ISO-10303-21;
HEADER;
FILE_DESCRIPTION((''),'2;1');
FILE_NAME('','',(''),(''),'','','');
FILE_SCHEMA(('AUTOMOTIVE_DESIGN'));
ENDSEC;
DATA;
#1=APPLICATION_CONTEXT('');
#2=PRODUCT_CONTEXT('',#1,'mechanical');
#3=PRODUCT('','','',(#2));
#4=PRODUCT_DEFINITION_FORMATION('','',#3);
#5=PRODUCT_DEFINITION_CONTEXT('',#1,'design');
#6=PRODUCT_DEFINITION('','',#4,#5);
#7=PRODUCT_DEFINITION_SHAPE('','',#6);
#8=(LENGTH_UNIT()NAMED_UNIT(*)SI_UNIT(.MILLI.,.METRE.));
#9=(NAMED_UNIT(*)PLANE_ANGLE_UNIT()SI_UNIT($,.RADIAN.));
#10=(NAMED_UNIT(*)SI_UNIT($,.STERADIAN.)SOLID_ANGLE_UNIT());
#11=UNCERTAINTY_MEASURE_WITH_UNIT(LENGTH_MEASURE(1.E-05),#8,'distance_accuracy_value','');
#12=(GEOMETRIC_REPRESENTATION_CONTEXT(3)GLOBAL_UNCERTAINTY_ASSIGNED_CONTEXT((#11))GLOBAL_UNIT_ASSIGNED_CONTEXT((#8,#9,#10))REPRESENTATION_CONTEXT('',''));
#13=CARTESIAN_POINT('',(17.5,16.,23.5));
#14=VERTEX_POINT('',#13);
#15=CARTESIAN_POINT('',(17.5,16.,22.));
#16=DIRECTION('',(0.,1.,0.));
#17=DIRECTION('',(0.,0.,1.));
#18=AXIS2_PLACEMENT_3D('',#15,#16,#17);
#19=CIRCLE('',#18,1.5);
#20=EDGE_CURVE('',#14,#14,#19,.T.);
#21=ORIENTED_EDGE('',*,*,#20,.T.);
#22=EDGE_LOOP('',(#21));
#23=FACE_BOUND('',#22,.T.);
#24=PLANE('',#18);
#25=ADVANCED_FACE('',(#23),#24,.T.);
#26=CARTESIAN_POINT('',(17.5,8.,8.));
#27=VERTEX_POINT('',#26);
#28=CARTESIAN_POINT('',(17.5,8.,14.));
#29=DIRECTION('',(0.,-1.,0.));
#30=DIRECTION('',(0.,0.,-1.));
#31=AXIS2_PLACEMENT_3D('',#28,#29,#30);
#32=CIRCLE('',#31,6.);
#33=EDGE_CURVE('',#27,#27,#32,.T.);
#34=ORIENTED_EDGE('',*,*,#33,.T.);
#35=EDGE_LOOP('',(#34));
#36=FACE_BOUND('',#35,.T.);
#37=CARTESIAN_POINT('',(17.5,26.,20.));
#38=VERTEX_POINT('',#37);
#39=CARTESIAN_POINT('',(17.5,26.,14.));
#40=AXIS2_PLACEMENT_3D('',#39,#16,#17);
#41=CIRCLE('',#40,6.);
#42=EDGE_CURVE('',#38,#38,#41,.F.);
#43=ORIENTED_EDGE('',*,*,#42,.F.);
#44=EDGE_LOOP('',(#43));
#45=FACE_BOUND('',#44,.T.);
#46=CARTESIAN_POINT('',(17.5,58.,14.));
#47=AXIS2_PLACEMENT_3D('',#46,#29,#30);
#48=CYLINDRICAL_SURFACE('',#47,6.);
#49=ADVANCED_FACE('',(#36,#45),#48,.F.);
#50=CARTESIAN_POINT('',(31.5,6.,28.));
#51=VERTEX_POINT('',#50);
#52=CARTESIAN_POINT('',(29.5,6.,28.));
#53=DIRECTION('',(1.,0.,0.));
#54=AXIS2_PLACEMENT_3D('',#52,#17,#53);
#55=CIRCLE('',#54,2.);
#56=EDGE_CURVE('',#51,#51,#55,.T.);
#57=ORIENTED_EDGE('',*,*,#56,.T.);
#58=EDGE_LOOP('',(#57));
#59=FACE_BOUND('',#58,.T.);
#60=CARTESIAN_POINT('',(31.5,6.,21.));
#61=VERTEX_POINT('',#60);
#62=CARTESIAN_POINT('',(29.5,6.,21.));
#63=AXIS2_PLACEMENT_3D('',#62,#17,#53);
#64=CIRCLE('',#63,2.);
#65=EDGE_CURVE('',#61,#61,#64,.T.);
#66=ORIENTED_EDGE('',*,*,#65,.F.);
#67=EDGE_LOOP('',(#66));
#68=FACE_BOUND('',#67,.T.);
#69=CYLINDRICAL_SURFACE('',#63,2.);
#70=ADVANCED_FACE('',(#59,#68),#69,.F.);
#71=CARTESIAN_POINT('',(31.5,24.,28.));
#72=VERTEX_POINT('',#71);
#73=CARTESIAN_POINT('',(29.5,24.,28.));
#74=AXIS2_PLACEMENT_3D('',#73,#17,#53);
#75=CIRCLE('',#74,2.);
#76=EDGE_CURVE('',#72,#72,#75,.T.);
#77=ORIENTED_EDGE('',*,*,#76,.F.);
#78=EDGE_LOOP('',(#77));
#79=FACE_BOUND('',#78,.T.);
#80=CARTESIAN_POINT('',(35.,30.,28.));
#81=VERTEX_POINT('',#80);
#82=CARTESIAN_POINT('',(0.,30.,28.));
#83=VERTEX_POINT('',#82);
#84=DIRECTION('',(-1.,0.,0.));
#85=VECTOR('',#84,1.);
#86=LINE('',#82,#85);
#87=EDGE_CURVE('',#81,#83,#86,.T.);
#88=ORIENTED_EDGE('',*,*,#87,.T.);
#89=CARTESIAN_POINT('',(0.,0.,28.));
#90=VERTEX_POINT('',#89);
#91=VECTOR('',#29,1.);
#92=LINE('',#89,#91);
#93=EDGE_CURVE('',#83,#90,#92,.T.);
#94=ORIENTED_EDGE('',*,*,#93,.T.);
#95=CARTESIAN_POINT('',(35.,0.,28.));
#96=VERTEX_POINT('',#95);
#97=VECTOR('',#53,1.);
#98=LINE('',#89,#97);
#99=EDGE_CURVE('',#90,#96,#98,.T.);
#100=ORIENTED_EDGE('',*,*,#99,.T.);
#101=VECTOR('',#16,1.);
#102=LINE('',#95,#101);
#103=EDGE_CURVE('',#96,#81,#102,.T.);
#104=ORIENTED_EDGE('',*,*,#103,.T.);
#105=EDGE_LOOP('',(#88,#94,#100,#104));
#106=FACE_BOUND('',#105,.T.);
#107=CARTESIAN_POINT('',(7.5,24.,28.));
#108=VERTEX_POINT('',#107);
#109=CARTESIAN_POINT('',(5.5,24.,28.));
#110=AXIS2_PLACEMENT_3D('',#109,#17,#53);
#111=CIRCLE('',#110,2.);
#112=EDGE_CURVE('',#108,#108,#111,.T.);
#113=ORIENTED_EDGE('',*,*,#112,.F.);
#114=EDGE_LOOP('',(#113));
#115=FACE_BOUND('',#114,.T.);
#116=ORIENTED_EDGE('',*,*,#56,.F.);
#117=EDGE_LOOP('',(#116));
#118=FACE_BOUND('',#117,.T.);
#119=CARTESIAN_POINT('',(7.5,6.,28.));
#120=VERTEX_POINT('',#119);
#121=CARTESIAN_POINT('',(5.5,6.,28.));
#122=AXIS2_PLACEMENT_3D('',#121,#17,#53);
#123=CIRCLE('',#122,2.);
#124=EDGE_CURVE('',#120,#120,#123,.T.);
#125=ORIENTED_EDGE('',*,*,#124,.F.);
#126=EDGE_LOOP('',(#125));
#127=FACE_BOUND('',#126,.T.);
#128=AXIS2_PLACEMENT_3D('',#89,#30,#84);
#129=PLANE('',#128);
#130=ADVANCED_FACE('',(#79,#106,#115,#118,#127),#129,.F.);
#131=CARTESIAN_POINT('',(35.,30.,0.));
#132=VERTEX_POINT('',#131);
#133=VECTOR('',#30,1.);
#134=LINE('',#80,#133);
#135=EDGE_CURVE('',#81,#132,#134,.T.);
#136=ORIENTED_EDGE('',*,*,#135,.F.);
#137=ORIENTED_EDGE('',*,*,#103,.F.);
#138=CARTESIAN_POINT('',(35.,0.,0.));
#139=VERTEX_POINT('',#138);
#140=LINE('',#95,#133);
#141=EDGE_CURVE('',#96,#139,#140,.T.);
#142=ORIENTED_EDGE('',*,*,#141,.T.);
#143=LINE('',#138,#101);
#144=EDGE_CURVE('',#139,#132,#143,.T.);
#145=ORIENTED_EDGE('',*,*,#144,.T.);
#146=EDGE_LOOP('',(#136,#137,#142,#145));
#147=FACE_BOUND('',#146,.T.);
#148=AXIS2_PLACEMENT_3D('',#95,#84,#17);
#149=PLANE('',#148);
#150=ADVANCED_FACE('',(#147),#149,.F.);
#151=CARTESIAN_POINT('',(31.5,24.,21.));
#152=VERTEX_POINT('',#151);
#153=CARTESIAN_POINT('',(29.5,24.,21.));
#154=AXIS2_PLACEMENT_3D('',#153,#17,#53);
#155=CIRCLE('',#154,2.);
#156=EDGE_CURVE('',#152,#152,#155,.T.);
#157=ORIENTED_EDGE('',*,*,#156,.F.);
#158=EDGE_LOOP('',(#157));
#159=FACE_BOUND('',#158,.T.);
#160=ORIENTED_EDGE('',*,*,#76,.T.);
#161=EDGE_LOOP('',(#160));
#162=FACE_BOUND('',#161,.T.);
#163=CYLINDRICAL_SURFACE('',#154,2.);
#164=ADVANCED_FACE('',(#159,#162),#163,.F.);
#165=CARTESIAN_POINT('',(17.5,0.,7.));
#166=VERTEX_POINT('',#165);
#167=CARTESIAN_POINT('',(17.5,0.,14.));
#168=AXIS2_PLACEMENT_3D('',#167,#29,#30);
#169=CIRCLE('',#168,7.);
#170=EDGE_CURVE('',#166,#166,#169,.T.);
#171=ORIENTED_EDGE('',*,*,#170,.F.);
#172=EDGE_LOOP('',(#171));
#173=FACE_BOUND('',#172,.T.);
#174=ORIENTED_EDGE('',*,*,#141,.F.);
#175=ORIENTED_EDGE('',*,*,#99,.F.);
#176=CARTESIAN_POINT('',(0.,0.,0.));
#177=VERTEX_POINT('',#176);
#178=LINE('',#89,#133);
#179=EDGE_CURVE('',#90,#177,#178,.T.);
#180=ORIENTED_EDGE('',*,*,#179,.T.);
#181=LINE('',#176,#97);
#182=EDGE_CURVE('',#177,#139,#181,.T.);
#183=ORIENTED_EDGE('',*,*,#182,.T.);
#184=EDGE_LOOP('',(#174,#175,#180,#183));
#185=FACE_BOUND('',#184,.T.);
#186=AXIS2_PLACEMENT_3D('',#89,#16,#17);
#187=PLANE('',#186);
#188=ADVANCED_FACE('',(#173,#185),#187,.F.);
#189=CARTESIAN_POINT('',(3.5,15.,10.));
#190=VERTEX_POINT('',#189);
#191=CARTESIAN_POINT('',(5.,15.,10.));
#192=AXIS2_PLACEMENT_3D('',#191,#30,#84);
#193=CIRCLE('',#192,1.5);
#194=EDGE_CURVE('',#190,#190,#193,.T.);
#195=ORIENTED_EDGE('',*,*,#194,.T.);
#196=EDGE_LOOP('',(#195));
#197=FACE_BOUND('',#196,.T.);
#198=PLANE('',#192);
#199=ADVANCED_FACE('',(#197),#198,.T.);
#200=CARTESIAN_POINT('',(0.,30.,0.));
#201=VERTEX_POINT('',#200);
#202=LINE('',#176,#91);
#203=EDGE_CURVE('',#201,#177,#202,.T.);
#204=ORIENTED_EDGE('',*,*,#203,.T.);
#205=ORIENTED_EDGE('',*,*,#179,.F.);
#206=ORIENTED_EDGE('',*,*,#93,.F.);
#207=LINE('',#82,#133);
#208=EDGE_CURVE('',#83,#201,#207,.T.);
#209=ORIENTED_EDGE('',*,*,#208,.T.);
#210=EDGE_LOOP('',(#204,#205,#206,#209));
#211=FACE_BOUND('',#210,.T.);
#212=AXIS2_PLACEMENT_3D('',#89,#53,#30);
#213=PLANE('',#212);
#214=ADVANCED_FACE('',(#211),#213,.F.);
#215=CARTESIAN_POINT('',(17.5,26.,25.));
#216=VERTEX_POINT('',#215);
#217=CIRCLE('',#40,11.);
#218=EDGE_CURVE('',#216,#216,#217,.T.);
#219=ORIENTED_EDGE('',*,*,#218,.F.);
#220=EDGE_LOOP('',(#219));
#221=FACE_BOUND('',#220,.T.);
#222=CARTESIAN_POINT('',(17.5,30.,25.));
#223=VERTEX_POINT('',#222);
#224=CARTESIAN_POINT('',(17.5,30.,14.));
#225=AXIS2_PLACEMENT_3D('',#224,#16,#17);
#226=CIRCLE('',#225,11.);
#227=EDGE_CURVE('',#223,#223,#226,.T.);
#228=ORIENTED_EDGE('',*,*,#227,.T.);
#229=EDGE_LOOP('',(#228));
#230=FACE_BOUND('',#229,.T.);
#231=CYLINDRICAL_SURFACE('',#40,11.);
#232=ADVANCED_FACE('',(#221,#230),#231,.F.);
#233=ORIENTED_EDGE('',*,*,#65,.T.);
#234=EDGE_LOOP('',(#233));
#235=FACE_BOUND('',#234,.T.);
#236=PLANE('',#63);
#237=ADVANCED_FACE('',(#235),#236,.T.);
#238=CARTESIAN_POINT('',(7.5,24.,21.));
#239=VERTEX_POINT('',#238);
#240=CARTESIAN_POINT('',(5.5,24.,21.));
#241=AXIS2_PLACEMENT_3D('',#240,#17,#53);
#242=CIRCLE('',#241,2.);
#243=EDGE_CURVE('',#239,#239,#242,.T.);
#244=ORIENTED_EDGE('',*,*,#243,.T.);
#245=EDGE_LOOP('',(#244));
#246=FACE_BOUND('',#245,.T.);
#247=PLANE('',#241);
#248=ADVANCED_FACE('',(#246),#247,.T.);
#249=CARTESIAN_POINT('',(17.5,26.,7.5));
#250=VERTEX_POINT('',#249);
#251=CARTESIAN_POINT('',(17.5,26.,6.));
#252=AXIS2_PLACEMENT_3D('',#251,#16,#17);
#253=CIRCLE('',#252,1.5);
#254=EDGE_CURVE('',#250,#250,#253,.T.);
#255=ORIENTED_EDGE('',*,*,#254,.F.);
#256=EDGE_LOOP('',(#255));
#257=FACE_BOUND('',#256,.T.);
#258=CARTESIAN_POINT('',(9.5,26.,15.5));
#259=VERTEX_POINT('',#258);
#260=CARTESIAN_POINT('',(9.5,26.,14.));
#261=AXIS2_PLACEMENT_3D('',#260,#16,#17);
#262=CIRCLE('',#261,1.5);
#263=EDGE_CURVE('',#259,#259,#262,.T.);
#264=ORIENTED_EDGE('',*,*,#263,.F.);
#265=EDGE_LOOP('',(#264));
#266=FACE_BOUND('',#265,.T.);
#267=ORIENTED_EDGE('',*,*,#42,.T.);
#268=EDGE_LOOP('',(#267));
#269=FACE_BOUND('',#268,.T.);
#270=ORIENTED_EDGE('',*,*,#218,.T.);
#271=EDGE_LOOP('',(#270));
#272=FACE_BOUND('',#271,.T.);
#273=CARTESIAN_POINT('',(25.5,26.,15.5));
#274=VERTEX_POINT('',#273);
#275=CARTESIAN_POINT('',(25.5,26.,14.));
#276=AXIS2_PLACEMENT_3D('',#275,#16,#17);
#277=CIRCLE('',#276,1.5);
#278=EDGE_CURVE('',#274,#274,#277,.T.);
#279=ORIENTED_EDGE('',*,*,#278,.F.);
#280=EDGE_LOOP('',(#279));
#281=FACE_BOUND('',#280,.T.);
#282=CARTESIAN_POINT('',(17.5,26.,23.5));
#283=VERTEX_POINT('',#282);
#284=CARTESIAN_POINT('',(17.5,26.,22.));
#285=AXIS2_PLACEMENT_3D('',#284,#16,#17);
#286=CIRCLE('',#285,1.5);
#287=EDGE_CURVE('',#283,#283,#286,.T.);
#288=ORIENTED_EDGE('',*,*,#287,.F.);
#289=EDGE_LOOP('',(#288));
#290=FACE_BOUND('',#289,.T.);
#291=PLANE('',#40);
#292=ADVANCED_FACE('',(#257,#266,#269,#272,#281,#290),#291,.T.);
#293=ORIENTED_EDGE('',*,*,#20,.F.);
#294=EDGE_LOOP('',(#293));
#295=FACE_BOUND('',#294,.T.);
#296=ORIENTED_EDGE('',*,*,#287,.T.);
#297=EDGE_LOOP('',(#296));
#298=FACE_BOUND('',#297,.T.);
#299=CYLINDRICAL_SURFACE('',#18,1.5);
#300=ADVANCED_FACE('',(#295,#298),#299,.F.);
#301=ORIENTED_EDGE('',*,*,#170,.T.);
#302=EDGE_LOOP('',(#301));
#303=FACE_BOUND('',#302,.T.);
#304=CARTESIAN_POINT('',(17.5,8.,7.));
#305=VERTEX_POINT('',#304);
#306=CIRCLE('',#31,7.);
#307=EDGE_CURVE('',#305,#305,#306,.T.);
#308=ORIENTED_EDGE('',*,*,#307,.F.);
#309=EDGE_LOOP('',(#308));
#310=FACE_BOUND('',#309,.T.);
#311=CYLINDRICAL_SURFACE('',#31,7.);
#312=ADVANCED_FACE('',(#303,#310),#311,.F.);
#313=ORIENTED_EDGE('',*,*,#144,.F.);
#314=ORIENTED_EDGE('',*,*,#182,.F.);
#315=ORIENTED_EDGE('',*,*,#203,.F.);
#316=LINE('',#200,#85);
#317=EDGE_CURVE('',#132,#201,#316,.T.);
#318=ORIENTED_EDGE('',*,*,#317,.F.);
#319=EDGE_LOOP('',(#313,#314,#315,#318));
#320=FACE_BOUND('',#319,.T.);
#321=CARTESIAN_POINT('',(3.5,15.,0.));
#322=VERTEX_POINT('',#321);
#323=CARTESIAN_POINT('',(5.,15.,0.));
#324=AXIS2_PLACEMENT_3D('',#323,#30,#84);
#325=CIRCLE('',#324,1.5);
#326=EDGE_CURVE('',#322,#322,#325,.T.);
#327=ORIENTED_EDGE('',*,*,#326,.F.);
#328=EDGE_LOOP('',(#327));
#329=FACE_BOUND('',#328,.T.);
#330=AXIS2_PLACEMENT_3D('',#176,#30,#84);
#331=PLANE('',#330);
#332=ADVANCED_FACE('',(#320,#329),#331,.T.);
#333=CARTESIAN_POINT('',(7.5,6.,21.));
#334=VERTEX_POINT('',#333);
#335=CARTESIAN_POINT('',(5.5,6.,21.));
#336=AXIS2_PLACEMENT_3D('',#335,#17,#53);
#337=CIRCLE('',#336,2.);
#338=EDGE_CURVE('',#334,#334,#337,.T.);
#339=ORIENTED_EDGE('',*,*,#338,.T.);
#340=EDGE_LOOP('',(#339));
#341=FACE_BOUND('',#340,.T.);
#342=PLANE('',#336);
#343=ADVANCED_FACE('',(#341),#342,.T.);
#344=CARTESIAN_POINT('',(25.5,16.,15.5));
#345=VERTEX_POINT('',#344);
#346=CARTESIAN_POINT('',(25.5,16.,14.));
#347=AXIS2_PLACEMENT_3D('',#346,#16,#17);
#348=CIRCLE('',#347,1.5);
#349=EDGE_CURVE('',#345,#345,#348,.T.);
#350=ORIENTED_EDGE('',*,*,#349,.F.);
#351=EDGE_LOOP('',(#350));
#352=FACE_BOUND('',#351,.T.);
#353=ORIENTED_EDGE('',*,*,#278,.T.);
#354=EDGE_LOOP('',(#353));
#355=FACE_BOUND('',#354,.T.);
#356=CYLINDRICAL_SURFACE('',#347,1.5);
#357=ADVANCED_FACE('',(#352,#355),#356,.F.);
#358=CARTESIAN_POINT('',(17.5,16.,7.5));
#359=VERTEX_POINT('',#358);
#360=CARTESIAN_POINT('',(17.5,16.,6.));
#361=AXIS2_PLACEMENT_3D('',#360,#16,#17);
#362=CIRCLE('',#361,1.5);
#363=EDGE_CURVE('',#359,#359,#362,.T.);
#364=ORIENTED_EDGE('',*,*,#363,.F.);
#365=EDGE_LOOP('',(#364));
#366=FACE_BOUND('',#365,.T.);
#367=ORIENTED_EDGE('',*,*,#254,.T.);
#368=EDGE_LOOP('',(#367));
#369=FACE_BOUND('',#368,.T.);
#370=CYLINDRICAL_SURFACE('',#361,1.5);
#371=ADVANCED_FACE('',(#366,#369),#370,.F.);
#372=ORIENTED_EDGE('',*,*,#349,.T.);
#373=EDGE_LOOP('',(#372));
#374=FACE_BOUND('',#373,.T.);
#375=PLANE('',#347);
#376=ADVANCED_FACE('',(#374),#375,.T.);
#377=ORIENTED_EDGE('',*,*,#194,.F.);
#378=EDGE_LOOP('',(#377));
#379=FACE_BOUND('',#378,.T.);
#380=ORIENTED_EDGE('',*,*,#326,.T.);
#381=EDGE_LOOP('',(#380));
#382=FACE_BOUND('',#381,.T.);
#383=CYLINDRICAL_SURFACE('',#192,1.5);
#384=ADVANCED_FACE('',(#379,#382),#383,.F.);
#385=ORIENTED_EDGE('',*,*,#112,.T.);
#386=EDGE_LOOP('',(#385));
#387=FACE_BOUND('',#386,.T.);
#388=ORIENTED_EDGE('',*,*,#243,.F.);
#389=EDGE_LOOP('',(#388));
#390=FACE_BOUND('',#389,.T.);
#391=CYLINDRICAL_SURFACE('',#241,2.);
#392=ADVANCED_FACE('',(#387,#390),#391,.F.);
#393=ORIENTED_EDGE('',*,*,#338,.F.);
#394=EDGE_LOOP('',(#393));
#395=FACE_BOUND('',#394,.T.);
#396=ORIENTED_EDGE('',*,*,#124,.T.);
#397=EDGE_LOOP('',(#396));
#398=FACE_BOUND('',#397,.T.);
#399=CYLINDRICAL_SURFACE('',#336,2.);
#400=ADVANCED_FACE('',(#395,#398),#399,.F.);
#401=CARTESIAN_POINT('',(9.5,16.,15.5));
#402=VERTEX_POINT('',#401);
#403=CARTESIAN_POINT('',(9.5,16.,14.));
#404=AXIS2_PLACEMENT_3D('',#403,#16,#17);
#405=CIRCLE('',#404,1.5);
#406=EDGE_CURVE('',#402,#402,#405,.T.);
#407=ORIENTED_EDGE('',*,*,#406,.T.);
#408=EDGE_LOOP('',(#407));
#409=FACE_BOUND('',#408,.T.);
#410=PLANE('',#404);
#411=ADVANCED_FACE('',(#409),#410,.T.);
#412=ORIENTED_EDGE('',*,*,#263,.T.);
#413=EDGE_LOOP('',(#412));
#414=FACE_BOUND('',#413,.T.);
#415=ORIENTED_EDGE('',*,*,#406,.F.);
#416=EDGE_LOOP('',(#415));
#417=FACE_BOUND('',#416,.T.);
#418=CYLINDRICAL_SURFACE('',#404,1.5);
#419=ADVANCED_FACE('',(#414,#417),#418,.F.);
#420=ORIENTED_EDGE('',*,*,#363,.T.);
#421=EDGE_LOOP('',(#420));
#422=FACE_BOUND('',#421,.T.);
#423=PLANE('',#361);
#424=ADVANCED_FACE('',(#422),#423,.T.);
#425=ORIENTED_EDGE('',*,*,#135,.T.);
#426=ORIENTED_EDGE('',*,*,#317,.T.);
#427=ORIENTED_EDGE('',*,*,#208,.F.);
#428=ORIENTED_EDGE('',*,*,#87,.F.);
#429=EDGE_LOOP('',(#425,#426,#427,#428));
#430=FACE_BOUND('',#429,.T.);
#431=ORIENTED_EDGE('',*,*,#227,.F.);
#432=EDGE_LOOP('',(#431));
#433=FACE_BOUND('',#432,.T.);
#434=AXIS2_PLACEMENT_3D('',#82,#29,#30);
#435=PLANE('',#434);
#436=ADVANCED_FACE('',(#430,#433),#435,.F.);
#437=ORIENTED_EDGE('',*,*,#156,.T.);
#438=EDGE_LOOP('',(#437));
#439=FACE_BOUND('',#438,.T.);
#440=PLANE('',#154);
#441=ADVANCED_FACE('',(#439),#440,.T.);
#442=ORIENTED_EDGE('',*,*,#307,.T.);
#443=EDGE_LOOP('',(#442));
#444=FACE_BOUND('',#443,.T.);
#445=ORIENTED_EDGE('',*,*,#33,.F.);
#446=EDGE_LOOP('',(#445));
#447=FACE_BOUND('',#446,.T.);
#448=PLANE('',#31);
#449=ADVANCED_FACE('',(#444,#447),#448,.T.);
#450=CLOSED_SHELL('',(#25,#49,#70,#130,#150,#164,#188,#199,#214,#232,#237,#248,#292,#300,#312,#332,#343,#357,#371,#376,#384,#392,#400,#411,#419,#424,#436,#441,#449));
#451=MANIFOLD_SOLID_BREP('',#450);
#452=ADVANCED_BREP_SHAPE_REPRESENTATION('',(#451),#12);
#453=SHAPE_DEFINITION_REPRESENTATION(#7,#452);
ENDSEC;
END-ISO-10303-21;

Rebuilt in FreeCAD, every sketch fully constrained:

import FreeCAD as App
import Part
import Sketcher
from FreeCAD import Vector
Q = App.Units.Quantity


def add_polygon(sketch, points):
    """Adds a closed chain of lines whose ends are joined by coincident constraints."""
    first, n = sketch.GeometryCount, len(points)
    for a, b in zip(points, points[1:] + points[:1]):
        sketch.addGeometry(Part.LineSegment(App.Vector(*a, 0), App.Vector(*b, 0)), False)
    for i in range(n):
        sketch.addConstraint(Sketcher.Constraint("Coincident", first + i, 2, first + (i + 1) % n, 1))

doc = App.newDocument("Part")
body = doc.addObject("PartDesign::Body", "Body")

# Sketch on XY plane
sketch1 = body.newObject("Sketcher::SketchObject", "Sketch")
sketch1.AttachmentSupport = (doc.getObject("XY_Plane"), [""])
sketch1.MapMode = "FlatFace"
add_polygon(sketch1, [(0, 30), (0, 0), (35, 0), (35, 30)])  # lines 0-3
sketch1.addConstraint([
    Sketcher.Constraint("Vertical", 0),
    Sketcher.Constraint("Horizontal", 1),
    Sketcher.Constraint("Vertical", 2),
    Sketcher.Constraint("Horizontal", 3),
    Sketcher.Constraint("Coincident", 0, 2, -1, 1),
    Sketcher.Constraint("DistanceX", 1, 1, 1, 2, Q("35 mm")),
    Sketcher.Constraint("DistanceY", 0, 2, 0, 1, Q("30 mm")),
])
pad1 = body.newObject("PartDesign::Pad", "Pad")
pad1.Profile = sketch1
pad1.Length = 28

# Sketch on XY plane
sketch2 = body.newObject("Sketcher::SketchObject", "Sketch001")
sketch2.AttachmentSupport = (doc.getObject("XY_Plane"), [""])
sketch2.MapMode = "FlatFace"
sketch2.AttachmentOffset = App.Placement(Vector(0, 0, 28), App.Rotation())
sketch2.addGeometry([
    Part.Circle(Vector(5.5, 24, 0), Vector(0, 0, 1), 2),
    Part.Circle(Vector(5.5, 6, 0), Vector(0, 0, 1), 2),
    Part.Circle(Vector(29.5, 6, 0), Vector(0, 0, 1), 2),
    Part.Circle(Vector(29.5, 24, 0), Vector(0, 0, 1), 2),
], False)
sketch2.addConstraint([
    Sketcher.Constraint("Equal", 0, 1),
    Sketcher.Constraint("Equal", 1, 2),
    Sketcher.Constraint("Equal", 2, 3),
    Sketcher.Constraint("Horizontal", 1, 3, 2, 3),
    Sketcher.Constraint("Horizontal", 0, 3, 3, 3),
    Sketcher.Constraint("Vertical", 0, 3, 1, 3),
    Sketcher.Constraint("Vertical", 2, 3, 3, 3),
    Sketcher.Constraint("Diameter", 0, Q("4 mm")),
    Sketcher.Constraint("DistanceY", -1, 1, 0, 3, Q("24 mm")),
    Sketcher.Constraint("DistanceY", -1, 1, 1, 3, Q("6 mm")),
    Sketcher.Constraint("DistanceX", 1, 3, 2, 3, Q("24 mm")),
    Sketcher.Constraint("DistanceX", -1, 1, 0, 3, Q("5.5 mm")),
])
pocket1 = body.newObject("PartDesign::Pocket", "Pocket")
pocket1.Profile = sketch2
pocket1.Length = 7

# Sketch on XZ plane
sketch3 = body.newObject("Sketcher::SketchObject", "Sketch002")
sketch3.AttachmentSupport = (doc.getObject("XZ_Plane"), [""])
sketch3.MapMode = "FlatFace"
sketch3.addGeometry(Part.Circle(Vector(17.5, 14, 0), Vector(0, 0, 1), 7), False)
sketch3.addConstraint([
    Sketcher.Constraint("Diameter", 0, Q("14 mm")),
    Sketcher.Constraint("DistanceY", -1, 1, 0, 3, Q("14 mm")),
    Sketcher.Constraint("DistanceX", -1, 1, 0, 3, Q("17.5 mm")),
])
pocket2 = body.newObject("PartDesign::Pocket", "Pocket001")
pocket2.Profile = sketch3
pocket2.Length = 8

# Sketch on XZ plane
sketch4 = body.newObject("Sketcher::SketchObject", "Sketch003")
sketch4.AttachmentSupport = (doc.getObject("XZ_Plane"), [""])
sketch4.MapMode = "FlatFace"
sketch4.AttachmentOffset = App.Placement(Vector(0, 0, -8), App.Rotation())
sketch4.addGeometry(Part.Circle(Vector(17.5, 14, 0), Vector(0, 0, 1), 6), False)
sketch4.addConstraint([
    Sketcher.Constraint("Diameter", 0, Q("12 mm")),
    Sketcher.Constraint("DistanceY", -1, 1, 0, 3, Q("14 mm")),
    Sketcher.Constraint("DistanceX", -1, 1, 0, 3, Q("17.5 mm")),
])
pocket3 = body.newObject("PartDesign::Pocket", "Pocket002")
pocket3.Profile = sketch4
pocket3.Length = 50

# Sketch on XZ plane
sketch5 = body.newObject("Sketcher::SketchObject", "Sketch004")
sketch5.AttachmentSupport = (doc.getObject("XZ_Plane"), [""])
sketch5.MapMode = "FlatFace"
sketch5.AttachmentOffset = App.Placement(Vector(0, 0, -30), App.Rotation())
sketch5.addGeometry(Part.Circle(Vector(17.5, 14, 0), Vector(0, 0, 1), 11), False)
sketch5.addConstraint([
    Sketcher.Constraint("Diameter", 0, Q("22 mm")),
    Sketcher.Constraint("DistanceY", -1, 1, 0, 3, Q("14 mm")),
    Sketcher.Constraint("DistanceX", -1, 1, 0, 3, Q("17.5 mm")),
])
pocket4 = body.newObject("PartDesign::Pocket", "Pocket003")
pocket4.Profile = sketch5
pocket4.Length = 4
pocket4.Reversed = True

# Sketch on XZ plane
sketch6 = body.newObject("Sketcher::SketchObject", "Sketch005")
sketch6.AttachmentSupport = (doc.getObject("XZ_Plane"), [""])
sketch6.MapMode = "FlatFace"
sketch6.AttachmentOffset = App.Placement(Vector(0, 0, -26), App.Rotation())
sketch6.addGeometry([
    Part.Circle(Vector(17.5, 6, 0), Vector(0, 0, 1), 1.5),
    Part.Circle(Vector(9.5, 14, 0), Vector(0, 0, 1), 1.5),
    Part.Circle(Vector(17.5, 22, 0), Vector(0, 0, 1), 1.5),
    Part.Circle(Vector(25.5, 14, 0), Vector(0, 0, 1), 1.5),
], False)
sketch6.addConstraint([
    Sketcher.Constraint("Equal", 0, 1),
    Sketcher.Constraint("Equal", 1, 2),
    Sketcher.Constraint("Equal", 2, 3),
    Sketcher.Constraint("Horizontal", 1, 3, 3, 3),
    Sketcher.Constraint("Vertical", 0, 3, 2, 3),
    Sketcher.Constraint("Diameter", 0, Q("3 mm")),
    Sketcher.Constraint("DistanceY", -1, 1, 0, 3, Q("6 mm")),
    Sketcher.Constraint("DistanceY", -1, 1, 1, 3, Q("14 mm")),
    Sketcher.Constraint("DistanceY", -1, 1, 2, 3, Q("22 mm")),
    Sketcher.Constraint("DistanceX", 1, 3, 0, 3, Q("8 mm")),
    Sketcher.Constraint("DistanceX", 0, 3, 3, 3, Q("8 mm")),
    Sketcher.Constraint("DistanceX", -1, 1, 0, 3, Q("17.5 mm")),
])
pocket5 = body.newObject("PartDesign::Pocket", "Pocket004")
pocket5.Profile = sketch6
pocket5.Length = 10
pocket5.Reversed = True

# Sketch on XY plane
sketch7 = body.newObject("Sketcher::SketchObject", "Sketch006")
sketch7.AttachmentSupport = (doc.getObject("XY_Plane"), [""])
sketch7.MapMode = "FlatFace"
sketch7.addGeometry(Part.Circle(Vector(5, 15, 0), Vector(0, 0, 1), 1.5), False)
sketch7.addConstraint([
    Sketcher.Constraint("Diameter", 0, Q("3 mm")),
    Sketcher.Constraint("DistanceX", -1, 1, 0, 3, Q("5 mm")),
    Sketcher.Constraint("DistanceY", -1, 1, 0, 3, Q("15 mm")),
])
pocket6 = body.newObject("PartDesign::Pocket", "Pocket005")
pocket6.Profile = sketch7
pocket6.Length = 10
pocket6.Reversed = True

doc.recompute()
